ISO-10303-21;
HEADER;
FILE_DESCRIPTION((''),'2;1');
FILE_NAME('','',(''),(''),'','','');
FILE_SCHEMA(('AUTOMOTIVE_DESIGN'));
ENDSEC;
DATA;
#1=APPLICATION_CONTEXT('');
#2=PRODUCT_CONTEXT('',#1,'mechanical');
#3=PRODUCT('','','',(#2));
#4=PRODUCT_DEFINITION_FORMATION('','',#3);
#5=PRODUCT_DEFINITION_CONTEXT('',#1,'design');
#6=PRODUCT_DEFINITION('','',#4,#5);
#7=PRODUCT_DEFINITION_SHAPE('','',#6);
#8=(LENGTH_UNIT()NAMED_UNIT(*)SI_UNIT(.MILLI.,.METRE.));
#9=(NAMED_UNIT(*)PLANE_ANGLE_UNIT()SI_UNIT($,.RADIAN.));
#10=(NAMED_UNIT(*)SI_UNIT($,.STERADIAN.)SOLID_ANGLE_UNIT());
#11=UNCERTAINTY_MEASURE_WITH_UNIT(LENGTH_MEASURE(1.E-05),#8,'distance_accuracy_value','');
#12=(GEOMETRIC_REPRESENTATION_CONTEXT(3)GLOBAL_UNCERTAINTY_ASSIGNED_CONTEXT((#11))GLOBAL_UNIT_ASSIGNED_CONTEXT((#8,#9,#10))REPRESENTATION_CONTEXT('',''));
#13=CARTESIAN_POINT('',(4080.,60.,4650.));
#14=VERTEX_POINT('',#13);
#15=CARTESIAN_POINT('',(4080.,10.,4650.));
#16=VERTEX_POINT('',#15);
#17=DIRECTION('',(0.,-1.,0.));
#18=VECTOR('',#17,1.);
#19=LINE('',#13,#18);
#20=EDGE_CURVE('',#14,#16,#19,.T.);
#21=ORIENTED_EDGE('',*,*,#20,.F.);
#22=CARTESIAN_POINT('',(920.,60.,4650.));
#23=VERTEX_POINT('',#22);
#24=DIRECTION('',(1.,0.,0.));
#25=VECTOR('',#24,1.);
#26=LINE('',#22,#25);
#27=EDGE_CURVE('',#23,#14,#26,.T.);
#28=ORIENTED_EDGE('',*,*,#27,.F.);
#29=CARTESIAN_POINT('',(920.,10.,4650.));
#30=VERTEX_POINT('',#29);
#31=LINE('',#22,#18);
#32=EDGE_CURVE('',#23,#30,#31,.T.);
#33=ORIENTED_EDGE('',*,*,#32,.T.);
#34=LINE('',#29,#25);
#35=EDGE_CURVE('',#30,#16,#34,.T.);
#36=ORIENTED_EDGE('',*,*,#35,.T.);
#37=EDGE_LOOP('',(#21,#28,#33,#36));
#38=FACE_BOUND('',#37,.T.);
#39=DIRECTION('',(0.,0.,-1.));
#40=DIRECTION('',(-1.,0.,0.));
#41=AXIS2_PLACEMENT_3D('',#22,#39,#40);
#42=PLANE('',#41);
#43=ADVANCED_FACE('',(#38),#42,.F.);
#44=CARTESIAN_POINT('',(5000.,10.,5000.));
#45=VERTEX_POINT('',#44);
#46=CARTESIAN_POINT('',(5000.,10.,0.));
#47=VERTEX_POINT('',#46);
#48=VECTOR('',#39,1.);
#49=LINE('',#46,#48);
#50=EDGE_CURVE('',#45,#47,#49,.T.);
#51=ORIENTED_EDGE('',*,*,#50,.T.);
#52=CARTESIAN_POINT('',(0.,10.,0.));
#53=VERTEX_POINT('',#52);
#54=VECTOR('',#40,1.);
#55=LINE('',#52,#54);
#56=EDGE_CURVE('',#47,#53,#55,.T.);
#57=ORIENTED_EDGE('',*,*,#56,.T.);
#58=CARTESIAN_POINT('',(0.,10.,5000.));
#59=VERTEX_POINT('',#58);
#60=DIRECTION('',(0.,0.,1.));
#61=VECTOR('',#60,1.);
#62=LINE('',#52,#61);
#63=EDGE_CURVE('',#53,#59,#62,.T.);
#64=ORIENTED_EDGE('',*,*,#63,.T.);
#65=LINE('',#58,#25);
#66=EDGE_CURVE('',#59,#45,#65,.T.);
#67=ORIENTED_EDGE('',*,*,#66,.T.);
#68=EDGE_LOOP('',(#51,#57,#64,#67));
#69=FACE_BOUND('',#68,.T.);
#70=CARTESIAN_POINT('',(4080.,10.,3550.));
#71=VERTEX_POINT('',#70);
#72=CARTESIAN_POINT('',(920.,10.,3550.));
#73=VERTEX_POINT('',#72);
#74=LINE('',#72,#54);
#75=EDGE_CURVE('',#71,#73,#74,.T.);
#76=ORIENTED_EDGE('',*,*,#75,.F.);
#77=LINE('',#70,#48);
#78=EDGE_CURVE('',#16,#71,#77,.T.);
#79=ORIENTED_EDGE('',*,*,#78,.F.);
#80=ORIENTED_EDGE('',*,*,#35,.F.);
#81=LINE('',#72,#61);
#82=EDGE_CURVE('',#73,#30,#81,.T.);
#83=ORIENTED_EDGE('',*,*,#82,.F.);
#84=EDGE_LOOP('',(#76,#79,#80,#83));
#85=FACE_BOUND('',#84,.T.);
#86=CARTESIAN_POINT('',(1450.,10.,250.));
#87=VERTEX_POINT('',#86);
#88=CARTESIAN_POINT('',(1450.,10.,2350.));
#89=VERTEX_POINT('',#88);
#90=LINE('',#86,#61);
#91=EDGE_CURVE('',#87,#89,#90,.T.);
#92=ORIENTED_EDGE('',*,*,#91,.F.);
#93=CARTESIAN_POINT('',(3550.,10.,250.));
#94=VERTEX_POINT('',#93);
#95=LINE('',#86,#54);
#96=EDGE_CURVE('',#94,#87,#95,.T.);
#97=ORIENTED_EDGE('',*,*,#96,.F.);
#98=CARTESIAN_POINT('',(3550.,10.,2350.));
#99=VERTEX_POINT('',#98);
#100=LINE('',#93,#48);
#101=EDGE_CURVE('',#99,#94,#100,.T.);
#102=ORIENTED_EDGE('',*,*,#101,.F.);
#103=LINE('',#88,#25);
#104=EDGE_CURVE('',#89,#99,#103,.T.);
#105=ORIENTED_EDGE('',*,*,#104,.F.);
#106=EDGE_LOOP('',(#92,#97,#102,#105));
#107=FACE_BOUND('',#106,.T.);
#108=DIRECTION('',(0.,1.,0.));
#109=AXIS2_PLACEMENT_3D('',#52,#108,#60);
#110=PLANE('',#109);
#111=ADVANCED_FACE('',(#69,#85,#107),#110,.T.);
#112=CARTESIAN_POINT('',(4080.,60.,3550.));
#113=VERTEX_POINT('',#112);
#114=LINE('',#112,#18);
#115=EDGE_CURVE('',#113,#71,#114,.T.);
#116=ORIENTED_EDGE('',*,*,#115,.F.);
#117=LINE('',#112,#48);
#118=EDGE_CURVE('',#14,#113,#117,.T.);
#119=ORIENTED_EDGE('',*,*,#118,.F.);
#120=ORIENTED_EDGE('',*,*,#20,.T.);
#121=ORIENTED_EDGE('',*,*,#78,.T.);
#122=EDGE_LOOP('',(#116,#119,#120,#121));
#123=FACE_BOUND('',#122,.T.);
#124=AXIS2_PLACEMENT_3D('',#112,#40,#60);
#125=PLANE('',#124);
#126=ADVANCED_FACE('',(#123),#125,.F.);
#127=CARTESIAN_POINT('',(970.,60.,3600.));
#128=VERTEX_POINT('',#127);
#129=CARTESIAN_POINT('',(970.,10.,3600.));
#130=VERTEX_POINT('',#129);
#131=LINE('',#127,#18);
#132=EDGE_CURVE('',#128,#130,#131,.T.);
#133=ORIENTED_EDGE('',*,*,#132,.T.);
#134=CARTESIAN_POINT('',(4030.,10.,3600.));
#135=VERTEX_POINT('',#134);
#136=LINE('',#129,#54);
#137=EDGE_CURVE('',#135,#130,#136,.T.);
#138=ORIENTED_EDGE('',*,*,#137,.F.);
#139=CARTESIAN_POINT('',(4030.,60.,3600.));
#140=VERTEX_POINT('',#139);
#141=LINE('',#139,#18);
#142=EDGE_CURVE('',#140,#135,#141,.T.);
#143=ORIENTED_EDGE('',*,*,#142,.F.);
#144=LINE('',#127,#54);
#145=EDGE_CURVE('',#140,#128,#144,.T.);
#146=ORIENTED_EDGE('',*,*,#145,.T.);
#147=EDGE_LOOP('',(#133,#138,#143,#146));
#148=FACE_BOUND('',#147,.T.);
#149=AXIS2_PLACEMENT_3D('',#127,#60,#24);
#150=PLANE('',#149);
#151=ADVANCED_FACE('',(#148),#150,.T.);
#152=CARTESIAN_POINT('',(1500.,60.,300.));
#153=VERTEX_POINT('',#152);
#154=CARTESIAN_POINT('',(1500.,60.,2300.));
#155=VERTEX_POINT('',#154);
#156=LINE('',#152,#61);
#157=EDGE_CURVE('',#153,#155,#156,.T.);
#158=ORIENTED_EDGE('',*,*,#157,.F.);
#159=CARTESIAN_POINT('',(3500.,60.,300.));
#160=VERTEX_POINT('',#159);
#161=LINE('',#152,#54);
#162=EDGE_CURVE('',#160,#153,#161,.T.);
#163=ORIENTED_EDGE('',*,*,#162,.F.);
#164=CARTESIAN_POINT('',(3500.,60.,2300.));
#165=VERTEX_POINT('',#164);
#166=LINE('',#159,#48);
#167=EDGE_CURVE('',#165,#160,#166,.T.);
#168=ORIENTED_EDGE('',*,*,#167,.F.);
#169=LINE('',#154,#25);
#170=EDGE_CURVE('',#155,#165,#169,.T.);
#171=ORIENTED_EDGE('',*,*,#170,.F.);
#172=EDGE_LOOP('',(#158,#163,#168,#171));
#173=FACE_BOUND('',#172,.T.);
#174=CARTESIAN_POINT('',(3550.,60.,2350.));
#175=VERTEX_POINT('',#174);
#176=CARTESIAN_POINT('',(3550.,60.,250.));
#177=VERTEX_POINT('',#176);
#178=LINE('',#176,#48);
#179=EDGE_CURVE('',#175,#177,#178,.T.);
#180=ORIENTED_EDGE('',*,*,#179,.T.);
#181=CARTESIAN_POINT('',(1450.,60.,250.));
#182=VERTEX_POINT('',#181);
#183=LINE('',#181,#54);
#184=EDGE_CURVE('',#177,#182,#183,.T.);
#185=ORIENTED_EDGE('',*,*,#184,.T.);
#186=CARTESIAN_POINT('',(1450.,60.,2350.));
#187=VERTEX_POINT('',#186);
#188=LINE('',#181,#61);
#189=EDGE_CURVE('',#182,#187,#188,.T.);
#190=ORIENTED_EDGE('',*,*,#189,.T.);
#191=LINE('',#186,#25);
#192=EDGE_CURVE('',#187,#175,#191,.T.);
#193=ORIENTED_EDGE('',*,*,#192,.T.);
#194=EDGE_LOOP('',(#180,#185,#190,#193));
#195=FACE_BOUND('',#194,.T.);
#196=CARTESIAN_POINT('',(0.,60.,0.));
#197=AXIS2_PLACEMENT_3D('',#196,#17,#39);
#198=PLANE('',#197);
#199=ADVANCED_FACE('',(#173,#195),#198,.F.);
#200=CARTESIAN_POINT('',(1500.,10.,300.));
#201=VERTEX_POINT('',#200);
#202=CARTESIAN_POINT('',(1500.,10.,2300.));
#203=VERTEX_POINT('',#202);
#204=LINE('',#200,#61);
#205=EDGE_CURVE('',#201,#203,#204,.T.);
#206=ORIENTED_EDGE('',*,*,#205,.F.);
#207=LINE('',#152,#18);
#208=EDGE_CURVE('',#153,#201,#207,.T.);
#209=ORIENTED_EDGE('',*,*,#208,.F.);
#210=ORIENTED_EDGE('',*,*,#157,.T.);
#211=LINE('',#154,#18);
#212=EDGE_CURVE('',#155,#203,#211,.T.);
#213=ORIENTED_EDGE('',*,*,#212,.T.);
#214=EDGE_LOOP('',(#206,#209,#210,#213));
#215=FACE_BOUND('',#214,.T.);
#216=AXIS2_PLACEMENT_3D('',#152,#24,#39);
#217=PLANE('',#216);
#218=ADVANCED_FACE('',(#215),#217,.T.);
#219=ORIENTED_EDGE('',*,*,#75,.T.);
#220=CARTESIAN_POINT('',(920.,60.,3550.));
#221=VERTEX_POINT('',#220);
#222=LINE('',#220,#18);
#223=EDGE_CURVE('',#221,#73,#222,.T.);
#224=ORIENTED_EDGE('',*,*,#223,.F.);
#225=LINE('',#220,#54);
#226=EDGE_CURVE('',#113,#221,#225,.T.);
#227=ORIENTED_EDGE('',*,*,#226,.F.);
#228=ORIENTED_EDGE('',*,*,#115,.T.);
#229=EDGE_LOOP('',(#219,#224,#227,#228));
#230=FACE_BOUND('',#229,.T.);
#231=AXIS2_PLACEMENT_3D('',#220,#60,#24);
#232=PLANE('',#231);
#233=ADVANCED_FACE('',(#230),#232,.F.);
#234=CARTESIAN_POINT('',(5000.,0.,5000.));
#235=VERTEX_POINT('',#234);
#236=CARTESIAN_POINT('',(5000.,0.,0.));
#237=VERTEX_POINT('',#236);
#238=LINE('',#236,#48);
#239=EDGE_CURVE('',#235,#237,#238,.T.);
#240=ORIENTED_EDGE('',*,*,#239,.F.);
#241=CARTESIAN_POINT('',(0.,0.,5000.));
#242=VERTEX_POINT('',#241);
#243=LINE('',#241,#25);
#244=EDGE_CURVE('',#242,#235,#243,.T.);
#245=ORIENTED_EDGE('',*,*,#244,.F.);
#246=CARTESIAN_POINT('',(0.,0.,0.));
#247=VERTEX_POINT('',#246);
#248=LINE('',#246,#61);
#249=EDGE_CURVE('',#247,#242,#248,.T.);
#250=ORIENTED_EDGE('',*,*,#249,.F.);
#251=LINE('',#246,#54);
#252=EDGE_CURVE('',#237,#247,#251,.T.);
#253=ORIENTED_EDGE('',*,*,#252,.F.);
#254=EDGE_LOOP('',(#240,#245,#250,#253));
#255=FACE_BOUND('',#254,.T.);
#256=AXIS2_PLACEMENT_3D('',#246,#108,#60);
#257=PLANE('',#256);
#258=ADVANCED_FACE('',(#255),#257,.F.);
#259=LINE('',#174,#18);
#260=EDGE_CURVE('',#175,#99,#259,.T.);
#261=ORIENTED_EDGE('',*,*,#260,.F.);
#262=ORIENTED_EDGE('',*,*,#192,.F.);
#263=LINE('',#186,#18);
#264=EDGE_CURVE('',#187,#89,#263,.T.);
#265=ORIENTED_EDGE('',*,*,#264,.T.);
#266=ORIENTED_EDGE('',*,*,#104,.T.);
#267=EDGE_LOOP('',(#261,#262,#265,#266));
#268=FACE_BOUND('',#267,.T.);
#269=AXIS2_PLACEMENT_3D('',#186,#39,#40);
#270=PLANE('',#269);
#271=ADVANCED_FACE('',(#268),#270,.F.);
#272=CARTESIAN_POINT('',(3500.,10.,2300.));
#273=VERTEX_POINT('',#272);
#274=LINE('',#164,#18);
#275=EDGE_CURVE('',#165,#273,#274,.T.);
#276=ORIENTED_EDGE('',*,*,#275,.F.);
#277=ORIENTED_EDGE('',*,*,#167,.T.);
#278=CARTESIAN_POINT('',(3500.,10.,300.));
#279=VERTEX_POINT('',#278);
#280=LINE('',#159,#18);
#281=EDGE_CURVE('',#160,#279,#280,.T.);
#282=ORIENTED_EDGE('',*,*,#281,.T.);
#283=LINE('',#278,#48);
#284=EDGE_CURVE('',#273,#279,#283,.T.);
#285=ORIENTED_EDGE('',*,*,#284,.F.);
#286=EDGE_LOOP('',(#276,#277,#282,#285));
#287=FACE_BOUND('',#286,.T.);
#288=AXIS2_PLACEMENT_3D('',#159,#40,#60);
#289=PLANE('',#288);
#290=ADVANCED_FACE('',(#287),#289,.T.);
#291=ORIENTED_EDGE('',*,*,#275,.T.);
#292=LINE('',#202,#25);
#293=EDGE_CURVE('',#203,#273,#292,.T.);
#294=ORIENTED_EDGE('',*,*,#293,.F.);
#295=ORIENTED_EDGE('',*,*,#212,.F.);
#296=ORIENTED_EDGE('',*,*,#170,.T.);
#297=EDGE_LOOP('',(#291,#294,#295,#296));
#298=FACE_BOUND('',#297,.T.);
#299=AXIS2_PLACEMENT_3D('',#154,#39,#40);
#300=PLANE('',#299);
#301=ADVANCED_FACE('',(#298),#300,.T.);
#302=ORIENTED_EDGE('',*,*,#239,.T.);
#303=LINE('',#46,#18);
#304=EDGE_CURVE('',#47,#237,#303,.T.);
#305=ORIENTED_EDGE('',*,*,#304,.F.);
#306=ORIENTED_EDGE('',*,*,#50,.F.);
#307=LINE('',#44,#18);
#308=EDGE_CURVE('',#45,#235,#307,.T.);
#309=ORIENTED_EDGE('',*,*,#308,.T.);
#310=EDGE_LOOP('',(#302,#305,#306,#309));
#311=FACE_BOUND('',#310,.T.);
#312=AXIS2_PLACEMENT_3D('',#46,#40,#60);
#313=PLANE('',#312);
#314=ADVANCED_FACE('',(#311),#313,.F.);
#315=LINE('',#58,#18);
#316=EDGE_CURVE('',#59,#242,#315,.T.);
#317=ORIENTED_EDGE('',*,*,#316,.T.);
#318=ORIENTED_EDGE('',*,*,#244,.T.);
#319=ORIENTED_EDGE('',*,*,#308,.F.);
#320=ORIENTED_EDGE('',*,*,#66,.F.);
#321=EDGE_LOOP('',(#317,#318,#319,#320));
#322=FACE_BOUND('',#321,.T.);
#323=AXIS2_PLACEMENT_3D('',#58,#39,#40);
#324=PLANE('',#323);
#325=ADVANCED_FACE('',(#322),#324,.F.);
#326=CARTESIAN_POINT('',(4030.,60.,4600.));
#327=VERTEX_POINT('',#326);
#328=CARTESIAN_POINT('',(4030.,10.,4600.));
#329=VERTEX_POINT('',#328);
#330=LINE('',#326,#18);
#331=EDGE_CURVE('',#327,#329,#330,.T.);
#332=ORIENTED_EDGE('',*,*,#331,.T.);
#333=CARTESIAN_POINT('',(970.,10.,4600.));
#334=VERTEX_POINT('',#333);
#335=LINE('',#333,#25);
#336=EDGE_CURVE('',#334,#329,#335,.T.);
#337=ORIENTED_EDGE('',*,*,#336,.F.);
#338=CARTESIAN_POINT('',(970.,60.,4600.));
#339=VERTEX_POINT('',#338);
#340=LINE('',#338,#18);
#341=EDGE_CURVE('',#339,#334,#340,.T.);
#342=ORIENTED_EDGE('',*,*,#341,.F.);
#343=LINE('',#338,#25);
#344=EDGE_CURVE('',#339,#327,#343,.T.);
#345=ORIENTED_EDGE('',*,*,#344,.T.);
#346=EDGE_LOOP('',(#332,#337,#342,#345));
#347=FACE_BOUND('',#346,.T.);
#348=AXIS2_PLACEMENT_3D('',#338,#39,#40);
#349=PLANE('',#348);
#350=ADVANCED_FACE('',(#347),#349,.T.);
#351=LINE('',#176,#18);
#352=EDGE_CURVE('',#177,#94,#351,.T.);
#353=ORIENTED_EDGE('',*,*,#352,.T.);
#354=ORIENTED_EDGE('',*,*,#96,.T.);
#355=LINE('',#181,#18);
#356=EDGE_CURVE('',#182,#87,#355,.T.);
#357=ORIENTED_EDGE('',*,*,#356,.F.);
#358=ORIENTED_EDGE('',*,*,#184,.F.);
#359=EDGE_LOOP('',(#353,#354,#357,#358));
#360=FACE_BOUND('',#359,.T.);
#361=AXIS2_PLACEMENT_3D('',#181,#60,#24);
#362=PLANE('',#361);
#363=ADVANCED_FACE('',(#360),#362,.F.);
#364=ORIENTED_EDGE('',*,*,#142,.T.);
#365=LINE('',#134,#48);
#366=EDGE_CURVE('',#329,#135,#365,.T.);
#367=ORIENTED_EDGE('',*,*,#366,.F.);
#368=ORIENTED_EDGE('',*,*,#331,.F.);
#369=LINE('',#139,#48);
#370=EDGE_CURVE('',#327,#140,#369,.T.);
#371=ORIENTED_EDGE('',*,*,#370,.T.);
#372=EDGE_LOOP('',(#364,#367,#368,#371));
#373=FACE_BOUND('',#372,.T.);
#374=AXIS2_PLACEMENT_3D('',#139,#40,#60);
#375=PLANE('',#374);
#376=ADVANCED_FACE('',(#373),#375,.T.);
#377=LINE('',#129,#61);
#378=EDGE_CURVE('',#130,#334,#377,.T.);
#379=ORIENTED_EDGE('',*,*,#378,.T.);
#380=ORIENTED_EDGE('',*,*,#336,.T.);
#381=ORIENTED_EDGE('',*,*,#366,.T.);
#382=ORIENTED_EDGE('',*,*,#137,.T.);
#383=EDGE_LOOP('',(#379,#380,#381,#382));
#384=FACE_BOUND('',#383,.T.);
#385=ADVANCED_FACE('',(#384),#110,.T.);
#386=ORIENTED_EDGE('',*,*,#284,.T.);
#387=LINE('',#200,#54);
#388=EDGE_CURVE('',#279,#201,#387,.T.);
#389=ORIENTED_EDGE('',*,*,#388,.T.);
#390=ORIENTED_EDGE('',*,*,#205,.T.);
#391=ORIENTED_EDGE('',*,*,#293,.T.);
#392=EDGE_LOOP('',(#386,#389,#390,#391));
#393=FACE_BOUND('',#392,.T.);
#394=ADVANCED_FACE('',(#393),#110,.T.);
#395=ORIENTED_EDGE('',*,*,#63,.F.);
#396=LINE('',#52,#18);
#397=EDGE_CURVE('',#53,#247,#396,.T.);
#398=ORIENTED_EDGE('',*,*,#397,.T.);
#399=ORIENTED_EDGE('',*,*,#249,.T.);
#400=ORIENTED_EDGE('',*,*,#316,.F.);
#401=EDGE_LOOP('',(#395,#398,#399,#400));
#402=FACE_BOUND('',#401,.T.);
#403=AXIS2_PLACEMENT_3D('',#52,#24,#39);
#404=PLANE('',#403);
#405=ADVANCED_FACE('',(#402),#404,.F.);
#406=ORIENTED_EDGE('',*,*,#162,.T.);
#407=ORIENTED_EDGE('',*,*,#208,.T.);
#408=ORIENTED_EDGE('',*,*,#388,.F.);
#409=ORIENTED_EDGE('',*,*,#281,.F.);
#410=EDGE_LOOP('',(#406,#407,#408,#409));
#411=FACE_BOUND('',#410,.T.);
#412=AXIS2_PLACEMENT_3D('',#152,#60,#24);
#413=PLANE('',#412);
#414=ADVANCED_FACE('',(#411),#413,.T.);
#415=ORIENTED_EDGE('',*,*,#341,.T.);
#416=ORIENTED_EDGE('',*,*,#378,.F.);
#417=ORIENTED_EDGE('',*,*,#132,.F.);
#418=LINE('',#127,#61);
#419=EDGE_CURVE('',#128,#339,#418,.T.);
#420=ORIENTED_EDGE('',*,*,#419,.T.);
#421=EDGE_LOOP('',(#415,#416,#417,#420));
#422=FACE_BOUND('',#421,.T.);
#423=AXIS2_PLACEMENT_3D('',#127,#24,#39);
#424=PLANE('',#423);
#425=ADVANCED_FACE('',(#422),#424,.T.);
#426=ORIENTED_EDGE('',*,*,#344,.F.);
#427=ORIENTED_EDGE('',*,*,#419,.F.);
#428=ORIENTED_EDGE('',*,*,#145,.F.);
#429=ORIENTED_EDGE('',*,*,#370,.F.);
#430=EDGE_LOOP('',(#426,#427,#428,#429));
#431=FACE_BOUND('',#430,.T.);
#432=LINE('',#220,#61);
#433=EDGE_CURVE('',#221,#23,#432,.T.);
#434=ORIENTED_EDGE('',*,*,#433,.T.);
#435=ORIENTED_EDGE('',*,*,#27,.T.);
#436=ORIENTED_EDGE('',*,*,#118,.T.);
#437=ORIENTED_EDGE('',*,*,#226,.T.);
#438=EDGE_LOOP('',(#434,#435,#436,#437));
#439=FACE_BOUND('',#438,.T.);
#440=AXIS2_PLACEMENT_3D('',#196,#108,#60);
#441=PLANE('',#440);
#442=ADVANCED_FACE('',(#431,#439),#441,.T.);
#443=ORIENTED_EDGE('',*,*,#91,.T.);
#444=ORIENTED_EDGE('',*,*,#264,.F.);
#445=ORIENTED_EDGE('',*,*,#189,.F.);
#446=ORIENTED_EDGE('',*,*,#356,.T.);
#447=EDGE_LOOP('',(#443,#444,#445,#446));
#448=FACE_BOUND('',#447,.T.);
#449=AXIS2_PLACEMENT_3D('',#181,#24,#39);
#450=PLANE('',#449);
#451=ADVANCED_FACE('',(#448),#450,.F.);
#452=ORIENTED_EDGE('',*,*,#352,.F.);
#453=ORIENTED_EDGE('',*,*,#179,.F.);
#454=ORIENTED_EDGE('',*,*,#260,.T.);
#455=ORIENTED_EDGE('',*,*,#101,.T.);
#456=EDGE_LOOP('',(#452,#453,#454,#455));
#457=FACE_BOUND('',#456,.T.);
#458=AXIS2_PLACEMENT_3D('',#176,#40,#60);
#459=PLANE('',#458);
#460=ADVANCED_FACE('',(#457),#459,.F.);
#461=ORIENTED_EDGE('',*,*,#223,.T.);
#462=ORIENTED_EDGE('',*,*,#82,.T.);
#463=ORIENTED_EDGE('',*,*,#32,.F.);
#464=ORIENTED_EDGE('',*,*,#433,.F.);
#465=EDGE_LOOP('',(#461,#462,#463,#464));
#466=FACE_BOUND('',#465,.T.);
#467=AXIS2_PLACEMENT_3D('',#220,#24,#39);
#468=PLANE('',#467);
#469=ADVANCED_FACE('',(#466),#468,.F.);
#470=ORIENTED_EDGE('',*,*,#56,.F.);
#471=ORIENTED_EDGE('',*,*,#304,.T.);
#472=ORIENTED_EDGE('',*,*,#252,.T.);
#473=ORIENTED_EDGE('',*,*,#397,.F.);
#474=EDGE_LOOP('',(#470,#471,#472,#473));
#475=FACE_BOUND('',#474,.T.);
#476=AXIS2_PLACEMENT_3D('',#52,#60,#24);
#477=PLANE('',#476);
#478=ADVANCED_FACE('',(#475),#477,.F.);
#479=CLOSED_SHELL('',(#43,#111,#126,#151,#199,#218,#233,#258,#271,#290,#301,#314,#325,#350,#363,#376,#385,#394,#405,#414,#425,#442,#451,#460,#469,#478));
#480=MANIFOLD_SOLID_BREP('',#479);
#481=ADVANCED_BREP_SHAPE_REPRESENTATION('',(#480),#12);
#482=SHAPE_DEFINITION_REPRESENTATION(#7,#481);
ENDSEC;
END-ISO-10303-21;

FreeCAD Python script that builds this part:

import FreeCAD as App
import Part
import Sketcher

V = App.Vector

doc = App.newDocument("Part")
body = doc.addObject("PartDesign::Body", "Body")

sketch1 = doc.addObject("Sketcher::SketchObject", "Sketch")
body.addObject(sketch1)
sketch1.AttachmentSupport = (doc.XZ_Plane, [""])
sketch1.MapMode = "FlatFace"
sketch1.addGeometry([
    Part.LineSegment(V(0, 0, 0), V(0, 5000, 0)),
    Part.LineSegment(V(0, 5000, 0), V(5000, 5000, 0)),
    Part.LineSegment(V(5000, 5000, 0), V(5000, 0, 0)),
    Part.LineSegment(V(5000, 0, 0), V(0, 0, 0)),
], False)
sketch1.addConstraint([
    Sketcher.Constraint("Coincident", 0, 2, 1, 1),
    Sketcher.Constraint("Coincident", 1, 2, 2, 1),
    Sketcher.Constraint("Coincident", 2, 2, 3, 1),
    Sketcher.Constraint("Coincident", 3, 2, 0, 1),
    Sketcher.Constraint("Vertical", 0),
    Sketcher.Constraint("Horizontal", 1),
    Sketcher.Constraint("Vertical", 2),
    Sketcher.Constraint("Horizontal", 3),
    Sketcher.Constraint("Coincident", 3, 2, -1, 1),
    Sketcher.Constraint("Equal", 3, 0),
    Sketcher.Constraint("DistanceX", 1, 1, 1, 2, 5000.0),
])
pad1 = doc.addObject("PartDesign::Pad", "Pad")
body.addObject(pad1)
pad1.Profile = sketch1
pad1.Length = 10
pad1.Reversed = True

sketch2 = doc.addObject("Sketcher::SketchObject", "Sketch001")
body.addObject(sketch2)
sketch2.AttachmentSupport = (doc.XZ_Plane, [""])
sketch2.MapMode = "FlatFace"
sketch2.AttachmentOffset = App.Placement(V(0, 0, -10), App.Rotation())
sketch2.addGeometry([
    Part.LineSegment(V(1450, 250, 0), V(1450, 2350, 0)),
    Part.LineSegment(V(1450, 2350, 0), V(3550, 2350, 0)),
    Part.LineSegment(V(3550, 2350, 0), V(3550, 250, 0)),
    Part.LineSegment(V(3550, 250, 0), V(1450, 250, 0)),
    Part.LineSegment(V(3500, 2300, 0), V(1500, 2300, 0)),
    Part.LineSegment(V(1500, 2300, 0), V(1500, 300, 0)),
    Part.LineSegment(V(1500, 300, 0), V(3500, 300, 0)),
    Part.LineSegment(V(3500, 300, 0), V(3500, 2300, 0)),
    Part.LineSegment(V(920, 3550, 0), V(920, 4650, 0)),
    Part.LineSegment(V(920, 4650, 0), V(4080, 4650, 0)),
    Part.LineSegment(V(4080, 4650, 0), V(4080, 3550, 0)),
    Part.LineSegment(V(4080, 3550, 0), V(920, 3550, 0)),
    Part.LineSegment(V(4030, 4600, 0), V(970, 4600, 0)),
    Part.LineSegment(V(970, 4600, 0), V(970, 3600, 0)),
    Part.LineSegment(V(970, 3600, 0), V(4030, 3600, 0)),
    Part.LineSegment(V(4030, 3600, 0), V(4030, 4600, 0)),
], False)
sketch2.addConstraint([
    Sketcher.Constraint("Coincident", 0, 2, 1, 1),
    Sketcher.Constraint("Coincident", 1, 2, 2, 1),
    Sketcher.Constraint("Coincident", 2, 2, 3, 1),
    Sketcher.Constraint("Coincident", 3, 2, 0, 1),
    Sketcher.Constraint("Coincident", 4, 2, 5, 1),
    Sketcher.Constraint("Coincident", 5, 2, 6, 1),
    Sketcher.Constraint("Coincident", 6, 2, 7, 1),
    Sketcher.Constraint("Coincident", 7, 2, 4, 1),
    Sketcher.Constraint("Coincident", 8, 2, 9, 1),
    Sketcher.Constraint("Coincident", 9, 2, 10, 1),
    Sketcher.Constraint("Coincident", 10, 2, 11, 1),
    Sketcher.Constraint("Coincident", 11, 2, 8, 1),
    Sketcher.Constraint("Coincident", 12, 2, 13, 1),
    Sketcher.Constraint("Coincident", 13, 2, 14, 1),
    Sketcher.Constraint("Coincident", 14, 2, 15, 1),
    Sketcher.Constraint("Coincident", 15, 2, 12, 1),
    Sketcher.Constraint("Vertical", 0),
    Sketcher.Constraint("Horizontal", 1),
    Sketcher.Constraint("Vertical", 2),
    Sketcher.Constraint("Horizontal", 3),
    Sketcher.Constraint("Horizontal", 4),
    Sketcher.Constraint("Vertical", 5),
    Sketcher.Constraint("Horizontal", 6),
    Sketcher.Constraint("Vertical", 7),
    Sketcher.Constraint("Vertical", 8),
    Sketcher.Constraint("Horizontal", 9),
    Sketcher.Constraint("Vertical", 10),
    Sketcher.Constraint("Horizontal", 11),
    Sketcher.Constraint("Horizontal", 12),
    Sketcher.Constraint("Vertical", 13),
    Sketcher.Constraint("Horizontal", 14),
    Sketcher.Constraint("Vertical", 15),
    Sketcher.Constraint("Equal", 3, 0),
    Sketcher.Constraint("Equal", 6, 5),
    Sketcher.Constraint("DistanceX", 1, 1, 1, 2, 2100.0),
    Sketcher.Constraint("DistanceX", 4, 2, 4, 1, 2000.0),
    Sketcher.Constraint("DistanceX", 9, 1, 9, 2, 3160.0),
    Sketcher.Constraint("DistanceX", 12, 2, 12, 1, 3060.0),
    Sketcher.Constraint("DistanceY", 8, 1, 8, 2, 1100.0),
    Sketcher.Constraint("DistanceY", 13, 2, 13, 1, 1000.0),
    Sketcher.Constraint("DistanceX", -1, 1, 0, 2, 1450.0),
    Sketcher.Constraint("DistanceY", -1, 1, 0, 2, 2350.0),
    Sketcher.Constraint("DistanceX", -1, 1, 4, 2, 1500.0),
    Sketcher.Constraint("DistanceY", -1, 1, 4, 2, 2300.0),
    Sketcher.Constraint("DistanceX", -1, 1, 8, 2, 920.0),
    Sketcher.Constraint("DistanceY", -1, 1, 8, 2, 4650.0),
    Sketcher.Constraint("DistanceX", -1, 1, 12, 2, 970.0),
    Sketcher.Constraint("DistanceY", -1, 1, 12, 2, 4600.0),
])
pad2 = doc.addObject("PartDesign::Pad", "Pad001")
body.addObject(pad2)
pad2.Profile = sketch2
pad2.Length = 50
pad2.Reversed = True

doc.recompute()
